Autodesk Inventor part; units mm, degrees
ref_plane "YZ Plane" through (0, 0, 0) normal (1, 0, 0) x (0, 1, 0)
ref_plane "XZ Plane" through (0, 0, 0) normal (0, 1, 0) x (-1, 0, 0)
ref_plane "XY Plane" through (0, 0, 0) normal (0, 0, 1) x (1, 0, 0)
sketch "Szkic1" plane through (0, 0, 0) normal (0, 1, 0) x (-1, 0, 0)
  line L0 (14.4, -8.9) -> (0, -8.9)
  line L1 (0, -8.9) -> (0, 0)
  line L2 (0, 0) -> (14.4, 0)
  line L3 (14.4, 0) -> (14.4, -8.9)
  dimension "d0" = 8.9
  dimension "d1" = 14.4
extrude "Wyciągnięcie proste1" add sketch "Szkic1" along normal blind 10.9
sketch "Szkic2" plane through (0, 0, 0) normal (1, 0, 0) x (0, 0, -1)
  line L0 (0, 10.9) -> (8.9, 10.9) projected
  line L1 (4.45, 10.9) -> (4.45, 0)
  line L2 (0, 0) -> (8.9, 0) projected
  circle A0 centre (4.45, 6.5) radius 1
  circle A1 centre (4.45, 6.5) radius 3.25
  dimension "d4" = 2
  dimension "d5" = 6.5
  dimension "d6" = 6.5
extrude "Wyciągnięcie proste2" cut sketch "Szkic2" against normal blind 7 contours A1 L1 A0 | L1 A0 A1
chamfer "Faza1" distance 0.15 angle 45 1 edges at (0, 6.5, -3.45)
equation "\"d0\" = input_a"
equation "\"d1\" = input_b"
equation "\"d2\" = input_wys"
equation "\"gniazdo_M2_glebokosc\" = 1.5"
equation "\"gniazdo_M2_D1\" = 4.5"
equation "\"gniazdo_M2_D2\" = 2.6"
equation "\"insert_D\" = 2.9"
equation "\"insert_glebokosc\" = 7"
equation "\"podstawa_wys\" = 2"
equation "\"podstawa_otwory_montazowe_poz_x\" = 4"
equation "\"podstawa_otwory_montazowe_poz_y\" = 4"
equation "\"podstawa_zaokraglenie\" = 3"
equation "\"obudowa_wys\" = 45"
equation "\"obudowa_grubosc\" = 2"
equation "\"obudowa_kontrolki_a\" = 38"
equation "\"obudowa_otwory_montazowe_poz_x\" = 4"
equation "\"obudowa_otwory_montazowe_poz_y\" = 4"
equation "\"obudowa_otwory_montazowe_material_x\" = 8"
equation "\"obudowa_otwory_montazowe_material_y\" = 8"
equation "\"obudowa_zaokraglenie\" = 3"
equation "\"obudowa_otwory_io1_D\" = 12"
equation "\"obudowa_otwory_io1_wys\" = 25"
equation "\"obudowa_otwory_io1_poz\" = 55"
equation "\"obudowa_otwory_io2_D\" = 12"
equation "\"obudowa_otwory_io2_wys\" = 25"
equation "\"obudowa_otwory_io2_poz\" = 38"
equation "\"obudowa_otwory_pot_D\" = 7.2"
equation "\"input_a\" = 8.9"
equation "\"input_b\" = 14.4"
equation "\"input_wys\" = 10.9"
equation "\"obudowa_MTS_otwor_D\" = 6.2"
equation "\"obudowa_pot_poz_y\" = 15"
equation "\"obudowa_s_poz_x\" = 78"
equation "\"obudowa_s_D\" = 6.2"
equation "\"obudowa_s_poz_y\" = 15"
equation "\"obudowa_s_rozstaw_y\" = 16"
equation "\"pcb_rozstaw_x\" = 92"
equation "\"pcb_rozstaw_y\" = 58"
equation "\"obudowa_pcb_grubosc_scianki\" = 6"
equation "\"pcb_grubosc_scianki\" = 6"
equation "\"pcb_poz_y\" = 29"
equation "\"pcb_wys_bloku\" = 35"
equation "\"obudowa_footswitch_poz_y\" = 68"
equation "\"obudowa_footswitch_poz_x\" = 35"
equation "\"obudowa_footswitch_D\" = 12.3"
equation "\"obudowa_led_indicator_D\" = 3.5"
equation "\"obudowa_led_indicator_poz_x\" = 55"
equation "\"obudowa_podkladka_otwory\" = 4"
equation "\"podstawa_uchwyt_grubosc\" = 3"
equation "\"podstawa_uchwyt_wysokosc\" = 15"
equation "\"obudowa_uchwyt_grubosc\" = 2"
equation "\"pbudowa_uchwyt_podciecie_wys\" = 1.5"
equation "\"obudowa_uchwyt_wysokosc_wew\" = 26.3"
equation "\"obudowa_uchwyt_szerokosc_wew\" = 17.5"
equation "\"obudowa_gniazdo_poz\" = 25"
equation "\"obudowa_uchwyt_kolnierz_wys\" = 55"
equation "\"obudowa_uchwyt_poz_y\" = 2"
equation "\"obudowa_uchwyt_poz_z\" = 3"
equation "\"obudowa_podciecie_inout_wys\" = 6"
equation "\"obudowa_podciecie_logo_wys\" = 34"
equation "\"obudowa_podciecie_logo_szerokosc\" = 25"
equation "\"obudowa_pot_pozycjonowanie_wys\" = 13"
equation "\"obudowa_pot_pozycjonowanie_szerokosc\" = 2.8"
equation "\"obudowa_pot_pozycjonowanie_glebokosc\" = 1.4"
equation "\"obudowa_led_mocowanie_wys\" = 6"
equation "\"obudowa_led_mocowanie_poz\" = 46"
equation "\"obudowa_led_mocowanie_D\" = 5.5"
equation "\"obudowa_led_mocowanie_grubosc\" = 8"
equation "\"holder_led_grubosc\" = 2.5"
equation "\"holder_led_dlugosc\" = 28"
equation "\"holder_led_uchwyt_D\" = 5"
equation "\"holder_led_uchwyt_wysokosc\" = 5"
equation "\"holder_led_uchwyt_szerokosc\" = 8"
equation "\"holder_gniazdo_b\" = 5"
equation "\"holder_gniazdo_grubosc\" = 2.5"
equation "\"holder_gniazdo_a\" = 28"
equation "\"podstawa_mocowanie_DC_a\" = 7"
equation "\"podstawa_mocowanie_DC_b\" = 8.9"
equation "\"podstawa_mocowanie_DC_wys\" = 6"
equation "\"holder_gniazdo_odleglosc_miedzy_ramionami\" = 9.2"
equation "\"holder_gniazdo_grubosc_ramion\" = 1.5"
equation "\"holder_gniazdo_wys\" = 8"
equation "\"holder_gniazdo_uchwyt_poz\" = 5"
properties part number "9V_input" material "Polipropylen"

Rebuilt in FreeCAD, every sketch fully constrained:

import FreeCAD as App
import Part
import Sketcher
from FreeCAD import Vector
Q = App.Units.Quantity


def edges_at(feature, points):
    """Names of the edges that pass closest to the given points."""
    edges = feature.Shape.Edges
    near = lambda p: min(range(len(edges)), key=lambda i: edges[i].distToShape(Part.Vertex(*p))[0])
    return sorted({f"Edge{near(p) + 1}" for p in points})

doc = App.newDocument("Part")
params = doc.addObject("Spreadsheet::Sheet", "Params")
for row, (alias, value) in enumerate([
    ("sketch1_width", "14.4 mm"),
    ("sketch1_height", "8.9 mm"),
    ("pad1_length", "10.9 mm"),
    ("sketch2_diameter", "2 mm"),
    ("sketch2_diameter2", "6.5 mm"),
    ("pocket1_length", "7 mm"),
    ("chamfer_size", "0.15 mm"),
], start=1):
    params.set(f"A{row}", alias)
    params.set(f"B{row}", "=" + value)
    params.setAlias(f"B{row}", alias)

body = doc.addObject("PartDesign::Body", "Body")

sketch1 = body.newObject("Sketcher::SketchObject", "Sketch")
sketch1.AttachmentSupport = (doc.getObject("XZ_Plane"), [""])
sketch1.MapMode = "FlatFace"
sketch1.addGeometry(Part.LineSegment(Vector(0, -9, 0), Vector(-14, -9, 0)), False)
sketch1.addGeometry(Part.LineSegment(Vector(-14, -9, 0), Vector(-14, 0, 0)), False)
sketch1.addGeometry(Part.LineSegment(Vector(-14, 0, 0), Vector(0, 0, 0)), False)
sketch1.addGeometry(Part.LineSegment(Vector(0, 0, 0), Vector(0, -9, 0)), False)
sketch1.addConstraint(Sketcher.Constraint("Coincident", 0, 2, 1, 1))
sketch1.addConstraint(Sketcher.Constraint("Coincident", 1, 2, 2, 1))
sketch1.addConstraint(Sketcher.Constraint("Coincident", 2, 2, 3, 1))
sketch1.addConstraint(Sketcher.Constraint("Coincident", 3, 2, 0, 1))
sketch1.addConstraint(Sketcher.Constraint("Horizontal", 0))
sketch1.addConstraint(Sketcher.Constraint("Vertical", 1))
sketch1.addConstraint(Sketcher.Constraint("Horizontal", 2))
sketch1.addConstraint(Sketcher.Constraint("Vertical", 3))
sketch1.addConstraint(Sketcher.Constraint("Coincident", 2, 2, -1, 1))
sketch1.addConstraint(Sketcher.Constraint("DistanceX", 0, 2, 0, 1, Q("14.4 mm")))
sketch1.addConstraint(Sketcher.Constraint("DistanceY", 1, 1, 1, 2, Q("8.9 mm")))
sketch1.setExpression("Constraints[9]", "Params.sketch1_width")
sketch1.setExpression("Constraints[10]", "Params.sketch1_height")
pad1 = body.newObject("PartDesign::Pad", "Pad")
pad1.Profile = sketch1
pad1.setExpression("Length", "Params.pad1_length")
pad1.Reversed = True

sketch2 = body.newObject("Sketcher::SketchObject", "Sketch001")
sketch2.AttachmentSupport = (doc.getObject("YZ_Plane"), [""])
sketch2.MapMode = "FlatFace"
sketch2.addGeometry(Part.Circle(Vector(6.5, -4.5, 0), Vector(0, 0, 1), 3.2), False)
sketch2.addGeometry(Part.Circle(Vector(6.5, -4.5, 0), Vector(0, 0, 1), 1), False)
sketch2.addConstraint(Sketcher.Constraint("Coincident", 1, 3, 0, 3))
sketch2.addConstraint(Sketcher.Constraint("Diameter", 1, Q("2 mm")))
sketch2.addConstraint(Sketcher.Constraint("Diameter", 0, Q("6.5 mm")))
sketch2.addConstraint(Sketcher.Constraint("DistanceX", -1, 1, 0, 3, Q("6.5 mm")))
sketch2.addConstraint(Sketcher.Constraint("DistanceY", 0, 3, -1, 1, Q("4.45 mm")))
sketch2.setExpression("Constraints[1]", "Params.sketch2_diameter")
sketch2.setExpression("Constraints[2]", "Params.sketch2_diameter2")
pocket1 = body.newObject("PartDesign::Pocket", "Pocket")
pocket1.Profile = sketch2
pocket1.setExpression("Length", "Params.pocket1_length")
doc.recompute()

chamfer = body.newObject("PartDesign::Chamfer", "Chamfer")
chamfer.Base = (pocket1, edges_at(pocket1, [(0, 6.5, -3.45)]))
chamfer.setExpression("Size", "Params.chamfer_size")

doc.recompute()
